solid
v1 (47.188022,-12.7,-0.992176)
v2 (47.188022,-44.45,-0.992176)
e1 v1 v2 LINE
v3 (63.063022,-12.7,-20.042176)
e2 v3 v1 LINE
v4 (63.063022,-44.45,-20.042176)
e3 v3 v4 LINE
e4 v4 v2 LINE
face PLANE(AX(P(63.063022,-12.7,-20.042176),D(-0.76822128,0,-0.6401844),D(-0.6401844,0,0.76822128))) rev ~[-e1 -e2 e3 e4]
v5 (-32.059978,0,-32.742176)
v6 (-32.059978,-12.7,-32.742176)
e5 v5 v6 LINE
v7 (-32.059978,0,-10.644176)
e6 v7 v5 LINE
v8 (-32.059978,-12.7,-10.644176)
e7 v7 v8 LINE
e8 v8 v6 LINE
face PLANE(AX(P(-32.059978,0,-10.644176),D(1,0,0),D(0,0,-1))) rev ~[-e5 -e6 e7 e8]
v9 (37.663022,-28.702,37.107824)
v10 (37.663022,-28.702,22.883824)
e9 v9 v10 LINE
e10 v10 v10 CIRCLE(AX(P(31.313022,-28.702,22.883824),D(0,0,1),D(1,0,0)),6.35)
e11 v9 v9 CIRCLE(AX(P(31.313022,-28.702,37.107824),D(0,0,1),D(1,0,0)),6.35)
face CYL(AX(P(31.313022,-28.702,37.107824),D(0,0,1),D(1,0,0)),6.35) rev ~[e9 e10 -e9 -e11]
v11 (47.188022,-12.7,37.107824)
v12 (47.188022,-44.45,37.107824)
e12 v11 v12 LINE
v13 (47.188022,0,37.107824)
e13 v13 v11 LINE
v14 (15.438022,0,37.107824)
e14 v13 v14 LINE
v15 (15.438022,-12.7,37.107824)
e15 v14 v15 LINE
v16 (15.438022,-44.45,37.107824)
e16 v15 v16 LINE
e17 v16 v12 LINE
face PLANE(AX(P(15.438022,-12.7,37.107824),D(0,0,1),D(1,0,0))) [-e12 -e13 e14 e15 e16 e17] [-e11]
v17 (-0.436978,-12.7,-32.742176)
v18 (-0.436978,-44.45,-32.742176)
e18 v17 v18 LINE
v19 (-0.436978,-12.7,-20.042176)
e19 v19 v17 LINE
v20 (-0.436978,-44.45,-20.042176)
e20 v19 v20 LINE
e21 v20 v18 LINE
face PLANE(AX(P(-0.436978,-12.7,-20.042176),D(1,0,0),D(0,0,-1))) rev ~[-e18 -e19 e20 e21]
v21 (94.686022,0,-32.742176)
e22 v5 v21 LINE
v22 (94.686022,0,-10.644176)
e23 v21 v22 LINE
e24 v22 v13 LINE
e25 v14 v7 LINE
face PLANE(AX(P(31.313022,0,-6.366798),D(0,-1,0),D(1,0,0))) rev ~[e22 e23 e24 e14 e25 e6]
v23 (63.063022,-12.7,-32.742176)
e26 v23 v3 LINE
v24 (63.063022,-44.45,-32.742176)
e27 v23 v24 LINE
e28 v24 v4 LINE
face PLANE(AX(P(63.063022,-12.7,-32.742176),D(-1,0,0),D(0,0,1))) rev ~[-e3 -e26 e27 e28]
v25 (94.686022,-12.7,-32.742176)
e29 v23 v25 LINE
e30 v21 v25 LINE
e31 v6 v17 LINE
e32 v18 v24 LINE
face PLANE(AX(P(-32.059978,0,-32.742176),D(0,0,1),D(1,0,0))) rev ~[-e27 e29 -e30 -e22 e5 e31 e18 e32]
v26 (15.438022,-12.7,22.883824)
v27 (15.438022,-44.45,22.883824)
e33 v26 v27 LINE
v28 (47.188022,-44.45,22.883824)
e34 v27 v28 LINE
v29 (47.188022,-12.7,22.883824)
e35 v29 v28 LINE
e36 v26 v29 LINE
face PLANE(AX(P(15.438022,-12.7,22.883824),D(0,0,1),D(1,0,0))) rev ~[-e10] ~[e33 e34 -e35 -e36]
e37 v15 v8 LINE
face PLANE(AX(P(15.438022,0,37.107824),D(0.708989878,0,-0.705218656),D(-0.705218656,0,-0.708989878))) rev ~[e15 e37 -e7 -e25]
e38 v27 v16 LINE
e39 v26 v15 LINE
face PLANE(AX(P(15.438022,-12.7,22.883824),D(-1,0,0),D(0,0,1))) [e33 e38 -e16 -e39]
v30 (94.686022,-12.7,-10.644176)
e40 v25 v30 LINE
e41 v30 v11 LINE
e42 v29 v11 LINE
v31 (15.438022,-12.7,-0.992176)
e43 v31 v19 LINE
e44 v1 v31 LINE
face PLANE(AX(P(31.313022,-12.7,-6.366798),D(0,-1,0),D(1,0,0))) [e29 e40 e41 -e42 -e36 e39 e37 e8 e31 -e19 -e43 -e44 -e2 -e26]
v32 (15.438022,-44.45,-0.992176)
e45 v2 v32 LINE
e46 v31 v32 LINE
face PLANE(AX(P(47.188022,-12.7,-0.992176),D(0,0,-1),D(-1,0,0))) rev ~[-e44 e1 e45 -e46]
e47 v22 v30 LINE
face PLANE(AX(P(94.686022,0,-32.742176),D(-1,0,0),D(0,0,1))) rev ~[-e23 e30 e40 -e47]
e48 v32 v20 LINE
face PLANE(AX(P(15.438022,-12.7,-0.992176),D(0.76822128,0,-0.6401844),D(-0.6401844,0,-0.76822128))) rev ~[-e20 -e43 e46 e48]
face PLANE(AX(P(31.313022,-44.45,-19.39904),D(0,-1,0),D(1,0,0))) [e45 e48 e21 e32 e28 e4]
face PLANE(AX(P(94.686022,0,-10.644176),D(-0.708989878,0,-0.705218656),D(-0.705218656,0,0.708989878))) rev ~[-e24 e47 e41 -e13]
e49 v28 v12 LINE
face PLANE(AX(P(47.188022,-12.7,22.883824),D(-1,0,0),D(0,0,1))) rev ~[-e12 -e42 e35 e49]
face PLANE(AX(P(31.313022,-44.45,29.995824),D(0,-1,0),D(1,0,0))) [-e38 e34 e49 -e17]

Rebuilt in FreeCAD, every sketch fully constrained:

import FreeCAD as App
import Part
import Sketcher
Q = App.Units.Quantity

doc = App.newDocument("Part")
body = doc.addObject("PartDesign::Body", "Body")

sketch1 = body.newObject("Sketcher::SketchObject", "Sketch")
sketch1.AttachmentSupport = (doc.getObject("XZ_Plane"), [""])
sketch1.MapMode = "FlatFace"
sketch1.addGeometry(Part.LineSegment(App.Vector(-32, -11, 0), App.Vector(-32, -33, 0)), False)
sketch1.addGeometry(Part.LineSegment(App.Vector(-32, -33, 0), App.Vector(95, -33, 0)), False)
sketch1.addGeometry(Part.LineSegment(App.Vector(95, -33, 0), App.Vector(95, -11, 0)), False)
sketch1.addGeometry(Part.LineSegment(App.Vector(95, -11, 0), App.Vector(47, 37, 0)), False)
sketch1.addGeometry(Part.LineSegment(App.Vector(47, 37, 0), App.Vector(15, 37, 0)), False)
sketch1.addGeometry(Part.LineSegment(App.Vector(15, 37, 0), App.Vector(-32, -11, 0)), False)
sketch1.addConstraint(Sketcher.Constraint("Coincident", 0, 2, 1, 1))
sketch1.addConstraint(Sketcher.Constraint("Coincident", 1, 2, 2, 1))
sketch1.addConstraint(Sketcher.Constraint("Coincident", 2, 2, 3, 1))
sketch1.addConstraint(Sketcher.Constraint("Coincident", 3, 2, 4, 1))
sketch1.addConstraint(Sketcher.Constraint("Coincident", 4, 2, 5, 1))
sketch1.addConstraint(Sketcher.Constraint("Coincident", 5, 2, 0, 1))
sketch1.addConstraint(Sketcher.Constraint("Vertical", 0))
sketch1.addConstraint(Sketcher.Constraint("Horizontal", 1))
sketch1.addConstraint(Sketcher.Constraint("Vertical", 2))
sketch1.addConstraint(Sketcher.Constraint("Horizontal", 4))
sketch1.addConstraint(Sketcher.Constraint("Horizontal", 2, 2, 5, 2))
sketch1.addConstraint(Sketcher.Constraint("Equal", 3, 5))
sketch1.addConstraint(Sketcher.Constraint("DistanceX", 1, 1, 1, 2, Q("4.99 in")))
sketch1.addConstraint(Sketcher.Constraint("DistanceX", 4, 2, 4, 1, Q("1.25 in")))
sketch1.addConstraint(Sketcher.Constraint("DistanceY", 0, 2, 0, 1, Q("0.87 in")))
sketch1.addConstraint(Sketcher.Constraint("DistanceY", 2, 2, 3, 2, Q("1.88 in")))
sketch1.addConstraint(Sketcher.Constraint("DistanceX", -1, 1, 1, 2, Q("94.686022 mm")))
sketch1.addConstraint(Sketcher.Constraint("DistanceY", 0, 2, -1, 1, Q("32.742176 mm")))
pad1 = body.newObject("PartDesign::Pad", "Pad")
pad1.Profile = sketch1
pad1.Length = Q("0.5 in")

sketch2 = body.newObject("Sketcher::SketchObject", "Sketch001")
sketch2.AttachmentSupport = (doc.getObject("XZ_Plane"), [""])
sketch2.MapMode = "FlatFace"
sketch2.AttachmentOffset = App.Placement(App.Vector(0, 0, 0.5 * 25.4), App.Rotation())
sketch2.addGeometry(Part.LineSegment(App.Vector(15, 37, 0), App.Vector(15, 23, 0)), False)
sketch2.addGeometry(Part.LineSegment(App.Vector(15, 23, 0), App.Vector(47, 23, 0)), False)
sketch2.addGeometry(Part.LineSegment(App.Vector(47, 23, 0), App.Vector(47, 37, 0)), False)
sketch2.addGeometry(Part.LineSegment(App.Vector(47, 37, 0), App.Vector(15, 37, 0)), False)
sketch2.addGeometry(Part.LineSegment(App.Vector(0, -20, 0), App.Vector(0, -33, 0)), False)
sketch2.addGeometry(Part.LineSegment(App.Vector(0, -33, 0), App.Vector(63, -33, 0)), False)
sketch2.addGeometry(Part.LineSegment(App.Vector(63, -33, 0), App.Vector(63, -20, 0)), False)
sketch2.addGeometry(Part.LineSegment(App.Vector(63, -20, 0), App.Vector(47, -1, 0)), False)
sketch2.addGeometry(Part.LineSegment(App.Vector(47, -1, 0), App.Vector(15, -1, 0)), False)
sketch2.addGeometry(Part.LineSegment(App.Vector(15, -1, 0), App.Vector(0, -20, 0)), False)
sketch2.addConstraint(Sketcher.Constraint("Coincident", 0, 2, 1, 1))
sketch2.addConstraint(Sketcher.Constraint("Coincident", 1, 2, 2, 1))
sketch2.addConstraint(Sketcher.Constraint("Coincident", 2, 2, 3, 1))
sketch2.addConstraint(Sketcher.Constraint("Coincident", 3, 2, 0, 1))
sketch2.addConstraint(Sketcher.Constraint("Coincident", 4, 2, 5, 1))
sketch2.addConstraint(Sketcher.Constraint("Coincident", 5, 2, 6, 1))
sketch2.addConstraint(Sketcher.Constraint("Coincident", 6, 2, 7, 1))
sketch2.addConstraint(Sketcher.Constraint("Coincident", 7, 2, 8, 1))
sketch2.addConstraint(Sketcher.Constraint("Coincident", 8, 2, 9, 1))
sketch2.addConstraint(Sketcher.Constraint("Coincident", 9, 2, 4, 1))
sketch2.addConstraint(Sketcher.Constraint("Vertical", 0))
sketch2.addConstraint(Sketcher.Constraint("Horizontal", 1))
sketch2.addConstraint(Sketcher.Constraint("Vertical", 2))
sketch2.addConstraint(Sketcher.Constraint("Horizontal", 3))
sketch2.addConstraint(Sketcher.Constraint("Vertical", 4))
sketch2.addConstraint(Sketcher.Constraint("Horizontal", 5))
sketch2.addConstraint(Sketcher.Constraint("Vertical", 6))
sketch2.addConstraint(Sketcher.Constraint("Horizontal", 8))
sketch2.addConstraint(Sketcher.Constraint("Horizontal", 6, 2, 9, 2))
sketch2.addConstraint(Sketcher.Constraint("Vertical", 2, 2, 7, 2))
sketch2.addConstraint(Sketcher.Constraint("Vertical", 3, 2, 8, 2))
sketch2.addConstraint(Sketcher.Constraint("Equal", 7, 9))
sketch2.addConstraint(Sketcher.Constraint("DistanceX", 5, 1, 5, 2, Q("2.5 in")))
sketch2.addConstraint(Sketcher.Constraint("DistanceY", 4, 2, 4, 1, Q("0.5 in")))
sketch2.addConstraint(Sketcher.Constraint("DistanceX", 1, 1, 1, 2, Q("1.25 in")))
sketch2.addConstraint(Sketcher.Constraint("DistanceY", 0, 2, 0, 1, Q("0.56 in")))
sketch2.addConstraint(Sketcher.Constraint("DistanceY", 7, 2, 2, 2, Q("1.5 in")))
sketch2.addConstraint(Sketcher.Constraint("DistanceY", 4, 2, 0, 2, Q("2.19 in")))
sketch2.addConstraint(Sketcher.Constraint("DistanceX", -1, 1, 1, 2, Q("47.188022 mm")))
sketch2.addConstraint(Sketcher.Constraint("DistanceY", -1, 1, 0, 2, Q("22.883824 mm")))
pad2 = body.newObject("PartDesign::Pad", "Pad001")
pad2.Profile = sketch2
pad2.Length = Q("1.25 in")

sketch3 = body.newObject("Sketcher::SketchObject", "Sketch002")
sketch3.AttachmentSupport = (doc.getObject("XY_Plane"), [""])
sketch3.MapMode = "FlatFace"
sketch3.AttachmentOffset = App.Placement(App.Vector(0, 0, 37.107824), App.Rotation())
sketch3.addGeometry(Part.Circle(App.Vector(31, -29, 0), App.Vector(0, 0, 1), 6), False)
sketch3.addConstraint(Sketcher.Constraint("Diameter", 0, Q("0.5 in")))
sketch3.addConstraint(Sketcher.Constraint("DistanceY", 0, 3, -1, 1, Q("1.13 in")))
sketch3.addConstraint(Sketcher.Constraint("DistanceX", -1, 1, 0, 3, Q("31.313022 mm")))
pocket1 = body.newObject("PartDesign::Pocket", "Pocket")
pocket1.Profile = sketch3
pocket1.Length = Q("1 in")

doc.recompute()
